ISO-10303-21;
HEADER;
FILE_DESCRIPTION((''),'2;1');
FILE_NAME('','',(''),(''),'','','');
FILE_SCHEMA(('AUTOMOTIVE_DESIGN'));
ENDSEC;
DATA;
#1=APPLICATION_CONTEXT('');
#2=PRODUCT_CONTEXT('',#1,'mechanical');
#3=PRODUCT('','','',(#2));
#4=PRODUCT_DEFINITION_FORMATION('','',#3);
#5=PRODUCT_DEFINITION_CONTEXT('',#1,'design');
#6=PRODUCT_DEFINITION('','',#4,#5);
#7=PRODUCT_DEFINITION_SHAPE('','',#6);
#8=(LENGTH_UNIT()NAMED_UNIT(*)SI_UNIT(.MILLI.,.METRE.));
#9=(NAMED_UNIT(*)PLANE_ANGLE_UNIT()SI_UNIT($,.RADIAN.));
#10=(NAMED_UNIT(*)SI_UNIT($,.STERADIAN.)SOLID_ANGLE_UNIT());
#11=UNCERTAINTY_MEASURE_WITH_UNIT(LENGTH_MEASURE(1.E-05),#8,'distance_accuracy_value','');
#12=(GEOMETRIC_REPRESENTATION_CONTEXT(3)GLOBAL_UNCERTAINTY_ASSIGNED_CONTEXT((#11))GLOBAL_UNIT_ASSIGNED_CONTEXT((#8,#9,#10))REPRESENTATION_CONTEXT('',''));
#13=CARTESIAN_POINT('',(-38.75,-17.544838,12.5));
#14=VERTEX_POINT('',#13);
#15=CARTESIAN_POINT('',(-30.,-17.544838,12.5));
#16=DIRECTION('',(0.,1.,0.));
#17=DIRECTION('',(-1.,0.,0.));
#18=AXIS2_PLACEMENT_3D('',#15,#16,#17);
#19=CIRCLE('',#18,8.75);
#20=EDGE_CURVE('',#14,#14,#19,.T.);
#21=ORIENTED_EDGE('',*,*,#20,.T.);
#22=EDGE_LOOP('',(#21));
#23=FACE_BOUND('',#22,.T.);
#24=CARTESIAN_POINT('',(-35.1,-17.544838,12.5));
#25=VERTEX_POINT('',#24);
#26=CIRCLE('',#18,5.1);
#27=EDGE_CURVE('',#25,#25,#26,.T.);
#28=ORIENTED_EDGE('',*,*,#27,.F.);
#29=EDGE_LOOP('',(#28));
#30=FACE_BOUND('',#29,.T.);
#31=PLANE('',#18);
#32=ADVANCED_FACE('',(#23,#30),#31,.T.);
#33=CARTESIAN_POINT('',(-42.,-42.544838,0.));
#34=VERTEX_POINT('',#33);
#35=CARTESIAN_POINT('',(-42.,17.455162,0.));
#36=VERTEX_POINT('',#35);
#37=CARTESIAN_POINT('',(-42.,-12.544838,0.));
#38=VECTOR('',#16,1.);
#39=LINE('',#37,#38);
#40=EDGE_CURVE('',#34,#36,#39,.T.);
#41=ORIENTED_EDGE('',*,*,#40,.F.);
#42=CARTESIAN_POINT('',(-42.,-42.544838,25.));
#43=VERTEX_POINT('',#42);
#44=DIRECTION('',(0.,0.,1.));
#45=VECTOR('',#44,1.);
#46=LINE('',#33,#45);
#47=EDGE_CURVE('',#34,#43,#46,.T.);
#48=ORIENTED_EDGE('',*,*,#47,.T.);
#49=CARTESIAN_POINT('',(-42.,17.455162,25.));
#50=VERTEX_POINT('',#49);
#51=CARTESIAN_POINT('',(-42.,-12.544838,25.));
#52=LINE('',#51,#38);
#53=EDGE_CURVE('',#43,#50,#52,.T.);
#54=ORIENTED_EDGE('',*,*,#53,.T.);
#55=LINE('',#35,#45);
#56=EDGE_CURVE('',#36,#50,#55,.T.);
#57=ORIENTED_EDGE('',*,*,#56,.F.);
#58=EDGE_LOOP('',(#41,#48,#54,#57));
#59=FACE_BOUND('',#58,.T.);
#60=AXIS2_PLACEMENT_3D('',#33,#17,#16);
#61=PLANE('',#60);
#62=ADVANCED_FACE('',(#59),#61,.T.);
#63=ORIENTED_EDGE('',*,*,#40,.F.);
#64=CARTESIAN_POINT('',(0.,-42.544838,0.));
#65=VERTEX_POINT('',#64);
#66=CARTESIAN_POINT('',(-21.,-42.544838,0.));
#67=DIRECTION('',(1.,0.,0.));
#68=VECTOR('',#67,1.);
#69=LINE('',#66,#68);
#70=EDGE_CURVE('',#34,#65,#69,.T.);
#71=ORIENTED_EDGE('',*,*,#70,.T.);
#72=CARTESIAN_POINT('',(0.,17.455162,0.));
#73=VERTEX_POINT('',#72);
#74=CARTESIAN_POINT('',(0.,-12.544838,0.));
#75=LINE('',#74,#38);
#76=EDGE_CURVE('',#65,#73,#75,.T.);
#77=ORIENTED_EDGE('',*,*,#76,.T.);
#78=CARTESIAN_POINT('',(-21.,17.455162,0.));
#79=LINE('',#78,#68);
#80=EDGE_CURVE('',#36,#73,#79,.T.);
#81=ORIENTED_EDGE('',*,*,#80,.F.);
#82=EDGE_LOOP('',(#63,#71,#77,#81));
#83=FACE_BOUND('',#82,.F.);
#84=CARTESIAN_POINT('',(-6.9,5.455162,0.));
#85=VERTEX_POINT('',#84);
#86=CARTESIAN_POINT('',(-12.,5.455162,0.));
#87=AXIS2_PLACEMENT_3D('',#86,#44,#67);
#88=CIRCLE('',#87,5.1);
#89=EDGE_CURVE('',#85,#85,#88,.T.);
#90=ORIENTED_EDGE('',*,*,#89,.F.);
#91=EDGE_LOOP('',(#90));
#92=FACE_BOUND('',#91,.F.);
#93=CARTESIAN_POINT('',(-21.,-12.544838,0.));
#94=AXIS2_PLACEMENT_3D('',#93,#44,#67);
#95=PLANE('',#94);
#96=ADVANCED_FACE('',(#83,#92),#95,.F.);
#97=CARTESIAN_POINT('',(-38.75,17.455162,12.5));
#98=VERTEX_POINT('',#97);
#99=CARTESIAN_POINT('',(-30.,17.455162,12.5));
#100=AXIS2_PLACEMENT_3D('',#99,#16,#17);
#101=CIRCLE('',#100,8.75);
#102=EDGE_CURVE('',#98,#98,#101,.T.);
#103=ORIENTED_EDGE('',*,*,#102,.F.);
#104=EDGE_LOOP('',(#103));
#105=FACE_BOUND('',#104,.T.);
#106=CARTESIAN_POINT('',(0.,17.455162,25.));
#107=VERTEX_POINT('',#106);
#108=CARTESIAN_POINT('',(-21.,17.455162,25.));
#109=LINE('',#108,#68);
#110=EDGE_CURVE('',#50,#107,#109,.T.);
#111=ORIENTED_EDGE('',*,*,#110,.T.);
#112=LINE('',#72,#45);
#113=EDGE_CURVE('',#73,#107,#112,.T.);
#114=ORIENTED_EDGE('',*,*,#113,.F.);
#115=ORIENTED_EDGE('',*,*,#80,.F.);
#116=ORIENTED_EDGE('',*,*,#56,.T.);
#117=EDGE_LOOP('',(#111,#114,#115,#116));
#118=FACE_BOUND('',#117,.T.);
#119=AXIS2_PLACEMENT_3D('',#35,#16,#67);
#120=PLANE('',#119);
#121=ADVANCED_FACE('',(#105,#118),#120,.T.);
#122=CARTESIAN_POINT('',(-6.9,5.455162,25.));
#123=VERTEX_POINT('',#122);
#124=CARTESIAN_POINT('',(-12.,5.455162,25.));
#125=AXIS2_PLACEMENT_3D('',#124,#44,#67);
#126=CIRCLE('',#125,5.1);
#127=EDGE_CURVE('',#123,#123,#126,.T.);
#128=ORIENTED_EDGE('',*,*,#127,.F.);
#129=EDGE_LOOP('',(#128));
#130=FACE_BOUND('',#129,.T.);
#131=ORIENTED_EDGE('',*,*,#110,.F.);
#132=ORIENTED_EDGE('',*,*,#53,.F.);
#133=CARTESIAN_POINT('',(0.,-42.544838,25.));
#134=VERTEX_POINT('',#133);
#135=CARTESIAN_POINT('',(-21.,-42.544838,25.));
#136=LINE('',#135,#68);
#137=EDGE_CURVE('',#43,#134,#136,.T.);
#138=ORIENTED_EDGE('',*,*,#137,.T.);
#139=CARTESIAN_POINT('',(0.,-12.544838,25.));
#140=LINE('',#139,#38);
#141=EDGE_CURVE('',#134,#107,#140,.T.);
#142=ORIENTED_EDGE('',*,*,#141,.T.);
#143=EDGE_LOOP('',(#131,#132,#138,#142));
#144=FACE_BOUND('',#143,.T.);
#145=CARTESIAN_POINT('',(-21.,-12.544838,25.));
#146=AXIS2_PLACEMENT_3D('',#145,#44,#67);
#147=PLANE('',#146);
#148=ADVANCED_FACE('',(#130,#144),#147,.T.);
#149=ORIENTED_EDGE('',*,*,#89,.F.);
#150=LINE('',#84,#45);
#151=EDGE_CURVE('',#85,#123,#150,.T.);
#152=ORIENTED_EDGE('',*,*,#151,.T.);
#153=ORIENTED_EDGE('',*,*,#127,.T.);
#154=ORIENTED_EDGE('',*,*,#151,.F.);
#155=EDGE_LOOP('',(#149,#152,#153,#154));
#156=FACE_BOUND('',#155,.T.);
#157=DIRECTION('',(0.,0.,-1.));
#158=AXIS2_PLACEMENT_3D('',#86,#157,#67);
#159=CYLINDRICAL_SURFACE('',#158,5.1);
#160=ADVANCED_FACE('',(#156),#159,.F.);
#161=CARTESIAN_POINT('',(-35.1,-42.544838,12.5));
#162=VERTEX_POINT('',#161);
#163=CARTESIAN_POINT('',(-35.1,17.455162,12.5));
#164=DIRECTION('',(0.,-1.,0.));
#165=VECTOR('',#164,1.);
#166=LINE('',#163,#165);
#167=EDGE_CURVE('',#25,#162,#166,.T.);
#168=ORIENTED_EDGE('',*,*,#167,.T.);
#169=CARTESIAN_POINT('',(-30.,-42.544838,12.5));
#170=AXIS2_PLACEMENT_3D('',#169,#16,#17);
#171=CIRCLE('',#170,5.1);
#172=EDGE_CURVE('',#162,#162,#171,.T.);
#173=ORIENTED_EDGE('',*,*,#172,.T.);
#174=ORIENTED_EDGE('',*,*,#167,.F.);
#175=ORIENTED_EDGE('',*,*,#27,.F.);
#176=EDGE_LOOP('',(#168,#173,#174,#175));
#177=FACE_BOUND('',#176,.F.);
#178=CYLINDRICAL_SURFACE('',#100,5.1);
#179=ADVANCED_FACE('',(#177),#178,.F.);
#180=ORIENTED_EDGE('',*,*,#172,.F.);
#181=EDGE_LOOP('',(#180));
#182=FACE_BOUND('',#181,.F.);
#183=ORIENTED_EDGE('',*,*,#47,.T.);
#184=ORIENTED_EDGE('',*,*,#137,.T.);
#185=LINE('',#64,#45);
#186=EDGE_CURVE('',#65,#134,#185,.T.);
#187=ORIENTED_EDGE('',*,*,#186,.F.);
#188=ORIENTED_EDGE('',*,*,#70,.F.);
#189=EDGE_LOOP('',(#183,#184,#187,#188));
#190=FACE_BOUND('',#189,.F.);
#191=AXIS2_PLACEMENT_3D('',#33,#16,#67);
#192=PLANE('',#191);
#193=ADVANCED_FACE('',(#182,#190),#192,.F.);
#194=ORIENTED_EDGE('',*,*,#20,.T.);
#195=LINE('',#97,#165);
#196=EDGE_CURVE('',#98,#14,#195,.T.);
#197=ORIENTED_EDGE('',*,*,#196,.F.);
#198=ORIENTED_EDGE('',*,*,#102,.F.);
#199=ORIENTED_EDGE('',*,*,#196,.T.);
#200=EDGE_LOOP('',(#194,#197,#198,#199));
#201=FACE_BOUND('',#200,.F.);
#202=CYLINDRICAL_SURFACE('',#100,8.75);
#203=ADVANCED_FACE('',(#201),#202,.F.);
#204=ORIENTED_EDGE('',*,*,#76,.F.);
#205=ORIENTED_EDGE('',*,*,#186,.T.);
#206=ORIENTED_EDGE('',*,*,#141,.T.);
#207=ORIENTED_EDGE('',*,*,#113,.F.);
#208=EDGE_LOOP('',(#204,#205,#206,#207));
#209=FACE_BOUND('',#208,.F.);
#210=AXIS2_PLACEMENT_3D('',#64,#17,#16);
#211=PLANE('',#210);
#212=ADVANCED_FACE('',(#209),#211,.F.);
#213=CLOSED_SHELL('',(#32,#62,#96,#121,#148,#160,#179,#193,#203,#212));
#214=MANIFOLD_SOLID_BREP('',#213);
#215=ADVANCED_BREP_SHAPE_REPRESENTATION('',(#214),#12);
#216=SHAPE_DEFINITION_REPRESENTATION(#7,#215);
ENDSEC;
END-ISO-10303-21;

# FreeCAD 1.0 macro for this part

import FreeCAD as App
import Part
import Sketcher
Q = App.Units.Quantity


def add_polygon(sketch, points):
    """Adds a closed chain of lines whose ends are joined by coincident constraints."""
    first, n = sketch.GeometryCount, len(points)
    for a, b in zip(points, points[1:] + points[:1]):
        sketch.addGeometry(Part.LineSegment(App.Vector(*a, 0), App.Vector(*b, 0)), False)
    for i in range(n):
        sketch.addConstraint(Sketcher.Constraint("Coincident", first + i, 2, first + (i + 1) % n, 1))

doc = App.newDocument("Part")
body = doc.addObject("PartDesign::Body", "Body")

sketch1 = body.newObject("Sketcher::SketchObject", "Sketch")
sketch1.AttachmentSupport = (doc.getObject("XY_Plane"), [""])
sketch1.MapMode = "FlatFace"
add_polygon(sketch1, [(-42, 17.455162), (-42, -42.544838), (0, -42.544838), (0, 17.455162)])
sketch1.addGeometry(Part.Circle(App.Vector(-12, 5.455162, 0), App.Vector(0, 0, 1), 5.1), False)
sketch1.addConstraint([
    Sketcher.Constraint("Vertical", 0),
    Sketcher.Constraint("Horizontal", 1),
    Sketcher.Constraint("Vertical", 2),
    Sketcher.Constraint("Horizontal", 3),
    Sketcher.Constraint("PointOnObject", 1, 2, -2),
    Sketcher.Constraint("Diameter", 4, Q("10.2 mm")),
    Sketcher.Constraint("DistanceX", 1, 1, 1, 2, Q("42 mm")),
    Sketcher.Constraint("DistanceY", 0, 2, 0, 1, Q("60 mm")),
    Sketcher.Constraint("DistanceX", 4, 3, -1, 1, Q("12 mm")),
    Sketcher.Constraint("DistanceY", 0, 2, 4, 3, Q("48 mm")),
    Sketcher.Constraint("DistanceY", -1, 1, 4, 3, Q("5.455162 mm")),
])
pad1 = body.newObject("PartDesign::Pad", "Pad")
pad1.Profile = sketch1
pad1.Length = 25

sketch2 = body.newObject("Sketcher::SketchObject", "Sketch001")
sketch2.AttachmentSupport = (doc.getObject("XZ_Plane"), [""])
sketch2.MapMode = "FlatFace"
sketch2.AttachmentOffset = App.Placement(App.Vector(0, 0, -17.455162), App.Rotation())
sketch2.addGeometry([
    Part.Circle(App.Vector(-30, 12.5, 0), App.Vector(0, 0, 1), 8.75),
    Part.Circle(App.Vector(-30, 12.5, 0), App.Vector(0, 0, 1), 5.1),
], False)
sketch2.addConstraint([
    Sketcher.Constraint("Coincident", 1, 3, 0, 3),
    Sketcher.Constraint("Diameter", 0, Q("17.5 mm")),
    Sketcher.Constraint("Diameter", 1, Q("10.2 mm")),
    Sketcher.Constraint("DistanceX", 0, 3, -1, 1, Q("30 mm")),
    Sketcher.Constraint("DistanceY", -1, 1, 0, 3, Q("12.5 mm")),
])
pocket1 = body.newObject("PartDesign::Pocket", "Pocket")
pocket1.Profile = sketch2
pocket1.Length = 35
pocket1.Reversed = True

sketch3 = body.newObject("Sketcher::SketchObject", "Sketch002")
sketch3.AttachmentSupport = (doc.getObject("XZ_Plane"), [""])
sketch3.MapMode = "FlatFace"
sketch3.AttachmentOffset = App.Placement(App.Vector(0, 0, -17.455162), App.Rotation())
sketch3.addGeometry(Part.Circle(App.Vector(-30, 12.5, 0), App.Vector(0, 0, 1), 5.1), False)
sketch3.addConstraint([
    Sketcher.Constraint("Diameter", 0, Q("10.2 mm")),
    Sketcher.Constraint("DistanceX", 0, 3, -1, 1, Q("30 mm")),
    Sketcher.Constraint("DistanceY", -1, 1, 0, 3, Q("12.5 mm")),
])
pocket2 = body.newObject("PartDesign::Pocket", "Pocket001")
pocket2.Profile = sketch3
pocket2.Length = 60
pocket2.Reversed = True

doc.recompute()
